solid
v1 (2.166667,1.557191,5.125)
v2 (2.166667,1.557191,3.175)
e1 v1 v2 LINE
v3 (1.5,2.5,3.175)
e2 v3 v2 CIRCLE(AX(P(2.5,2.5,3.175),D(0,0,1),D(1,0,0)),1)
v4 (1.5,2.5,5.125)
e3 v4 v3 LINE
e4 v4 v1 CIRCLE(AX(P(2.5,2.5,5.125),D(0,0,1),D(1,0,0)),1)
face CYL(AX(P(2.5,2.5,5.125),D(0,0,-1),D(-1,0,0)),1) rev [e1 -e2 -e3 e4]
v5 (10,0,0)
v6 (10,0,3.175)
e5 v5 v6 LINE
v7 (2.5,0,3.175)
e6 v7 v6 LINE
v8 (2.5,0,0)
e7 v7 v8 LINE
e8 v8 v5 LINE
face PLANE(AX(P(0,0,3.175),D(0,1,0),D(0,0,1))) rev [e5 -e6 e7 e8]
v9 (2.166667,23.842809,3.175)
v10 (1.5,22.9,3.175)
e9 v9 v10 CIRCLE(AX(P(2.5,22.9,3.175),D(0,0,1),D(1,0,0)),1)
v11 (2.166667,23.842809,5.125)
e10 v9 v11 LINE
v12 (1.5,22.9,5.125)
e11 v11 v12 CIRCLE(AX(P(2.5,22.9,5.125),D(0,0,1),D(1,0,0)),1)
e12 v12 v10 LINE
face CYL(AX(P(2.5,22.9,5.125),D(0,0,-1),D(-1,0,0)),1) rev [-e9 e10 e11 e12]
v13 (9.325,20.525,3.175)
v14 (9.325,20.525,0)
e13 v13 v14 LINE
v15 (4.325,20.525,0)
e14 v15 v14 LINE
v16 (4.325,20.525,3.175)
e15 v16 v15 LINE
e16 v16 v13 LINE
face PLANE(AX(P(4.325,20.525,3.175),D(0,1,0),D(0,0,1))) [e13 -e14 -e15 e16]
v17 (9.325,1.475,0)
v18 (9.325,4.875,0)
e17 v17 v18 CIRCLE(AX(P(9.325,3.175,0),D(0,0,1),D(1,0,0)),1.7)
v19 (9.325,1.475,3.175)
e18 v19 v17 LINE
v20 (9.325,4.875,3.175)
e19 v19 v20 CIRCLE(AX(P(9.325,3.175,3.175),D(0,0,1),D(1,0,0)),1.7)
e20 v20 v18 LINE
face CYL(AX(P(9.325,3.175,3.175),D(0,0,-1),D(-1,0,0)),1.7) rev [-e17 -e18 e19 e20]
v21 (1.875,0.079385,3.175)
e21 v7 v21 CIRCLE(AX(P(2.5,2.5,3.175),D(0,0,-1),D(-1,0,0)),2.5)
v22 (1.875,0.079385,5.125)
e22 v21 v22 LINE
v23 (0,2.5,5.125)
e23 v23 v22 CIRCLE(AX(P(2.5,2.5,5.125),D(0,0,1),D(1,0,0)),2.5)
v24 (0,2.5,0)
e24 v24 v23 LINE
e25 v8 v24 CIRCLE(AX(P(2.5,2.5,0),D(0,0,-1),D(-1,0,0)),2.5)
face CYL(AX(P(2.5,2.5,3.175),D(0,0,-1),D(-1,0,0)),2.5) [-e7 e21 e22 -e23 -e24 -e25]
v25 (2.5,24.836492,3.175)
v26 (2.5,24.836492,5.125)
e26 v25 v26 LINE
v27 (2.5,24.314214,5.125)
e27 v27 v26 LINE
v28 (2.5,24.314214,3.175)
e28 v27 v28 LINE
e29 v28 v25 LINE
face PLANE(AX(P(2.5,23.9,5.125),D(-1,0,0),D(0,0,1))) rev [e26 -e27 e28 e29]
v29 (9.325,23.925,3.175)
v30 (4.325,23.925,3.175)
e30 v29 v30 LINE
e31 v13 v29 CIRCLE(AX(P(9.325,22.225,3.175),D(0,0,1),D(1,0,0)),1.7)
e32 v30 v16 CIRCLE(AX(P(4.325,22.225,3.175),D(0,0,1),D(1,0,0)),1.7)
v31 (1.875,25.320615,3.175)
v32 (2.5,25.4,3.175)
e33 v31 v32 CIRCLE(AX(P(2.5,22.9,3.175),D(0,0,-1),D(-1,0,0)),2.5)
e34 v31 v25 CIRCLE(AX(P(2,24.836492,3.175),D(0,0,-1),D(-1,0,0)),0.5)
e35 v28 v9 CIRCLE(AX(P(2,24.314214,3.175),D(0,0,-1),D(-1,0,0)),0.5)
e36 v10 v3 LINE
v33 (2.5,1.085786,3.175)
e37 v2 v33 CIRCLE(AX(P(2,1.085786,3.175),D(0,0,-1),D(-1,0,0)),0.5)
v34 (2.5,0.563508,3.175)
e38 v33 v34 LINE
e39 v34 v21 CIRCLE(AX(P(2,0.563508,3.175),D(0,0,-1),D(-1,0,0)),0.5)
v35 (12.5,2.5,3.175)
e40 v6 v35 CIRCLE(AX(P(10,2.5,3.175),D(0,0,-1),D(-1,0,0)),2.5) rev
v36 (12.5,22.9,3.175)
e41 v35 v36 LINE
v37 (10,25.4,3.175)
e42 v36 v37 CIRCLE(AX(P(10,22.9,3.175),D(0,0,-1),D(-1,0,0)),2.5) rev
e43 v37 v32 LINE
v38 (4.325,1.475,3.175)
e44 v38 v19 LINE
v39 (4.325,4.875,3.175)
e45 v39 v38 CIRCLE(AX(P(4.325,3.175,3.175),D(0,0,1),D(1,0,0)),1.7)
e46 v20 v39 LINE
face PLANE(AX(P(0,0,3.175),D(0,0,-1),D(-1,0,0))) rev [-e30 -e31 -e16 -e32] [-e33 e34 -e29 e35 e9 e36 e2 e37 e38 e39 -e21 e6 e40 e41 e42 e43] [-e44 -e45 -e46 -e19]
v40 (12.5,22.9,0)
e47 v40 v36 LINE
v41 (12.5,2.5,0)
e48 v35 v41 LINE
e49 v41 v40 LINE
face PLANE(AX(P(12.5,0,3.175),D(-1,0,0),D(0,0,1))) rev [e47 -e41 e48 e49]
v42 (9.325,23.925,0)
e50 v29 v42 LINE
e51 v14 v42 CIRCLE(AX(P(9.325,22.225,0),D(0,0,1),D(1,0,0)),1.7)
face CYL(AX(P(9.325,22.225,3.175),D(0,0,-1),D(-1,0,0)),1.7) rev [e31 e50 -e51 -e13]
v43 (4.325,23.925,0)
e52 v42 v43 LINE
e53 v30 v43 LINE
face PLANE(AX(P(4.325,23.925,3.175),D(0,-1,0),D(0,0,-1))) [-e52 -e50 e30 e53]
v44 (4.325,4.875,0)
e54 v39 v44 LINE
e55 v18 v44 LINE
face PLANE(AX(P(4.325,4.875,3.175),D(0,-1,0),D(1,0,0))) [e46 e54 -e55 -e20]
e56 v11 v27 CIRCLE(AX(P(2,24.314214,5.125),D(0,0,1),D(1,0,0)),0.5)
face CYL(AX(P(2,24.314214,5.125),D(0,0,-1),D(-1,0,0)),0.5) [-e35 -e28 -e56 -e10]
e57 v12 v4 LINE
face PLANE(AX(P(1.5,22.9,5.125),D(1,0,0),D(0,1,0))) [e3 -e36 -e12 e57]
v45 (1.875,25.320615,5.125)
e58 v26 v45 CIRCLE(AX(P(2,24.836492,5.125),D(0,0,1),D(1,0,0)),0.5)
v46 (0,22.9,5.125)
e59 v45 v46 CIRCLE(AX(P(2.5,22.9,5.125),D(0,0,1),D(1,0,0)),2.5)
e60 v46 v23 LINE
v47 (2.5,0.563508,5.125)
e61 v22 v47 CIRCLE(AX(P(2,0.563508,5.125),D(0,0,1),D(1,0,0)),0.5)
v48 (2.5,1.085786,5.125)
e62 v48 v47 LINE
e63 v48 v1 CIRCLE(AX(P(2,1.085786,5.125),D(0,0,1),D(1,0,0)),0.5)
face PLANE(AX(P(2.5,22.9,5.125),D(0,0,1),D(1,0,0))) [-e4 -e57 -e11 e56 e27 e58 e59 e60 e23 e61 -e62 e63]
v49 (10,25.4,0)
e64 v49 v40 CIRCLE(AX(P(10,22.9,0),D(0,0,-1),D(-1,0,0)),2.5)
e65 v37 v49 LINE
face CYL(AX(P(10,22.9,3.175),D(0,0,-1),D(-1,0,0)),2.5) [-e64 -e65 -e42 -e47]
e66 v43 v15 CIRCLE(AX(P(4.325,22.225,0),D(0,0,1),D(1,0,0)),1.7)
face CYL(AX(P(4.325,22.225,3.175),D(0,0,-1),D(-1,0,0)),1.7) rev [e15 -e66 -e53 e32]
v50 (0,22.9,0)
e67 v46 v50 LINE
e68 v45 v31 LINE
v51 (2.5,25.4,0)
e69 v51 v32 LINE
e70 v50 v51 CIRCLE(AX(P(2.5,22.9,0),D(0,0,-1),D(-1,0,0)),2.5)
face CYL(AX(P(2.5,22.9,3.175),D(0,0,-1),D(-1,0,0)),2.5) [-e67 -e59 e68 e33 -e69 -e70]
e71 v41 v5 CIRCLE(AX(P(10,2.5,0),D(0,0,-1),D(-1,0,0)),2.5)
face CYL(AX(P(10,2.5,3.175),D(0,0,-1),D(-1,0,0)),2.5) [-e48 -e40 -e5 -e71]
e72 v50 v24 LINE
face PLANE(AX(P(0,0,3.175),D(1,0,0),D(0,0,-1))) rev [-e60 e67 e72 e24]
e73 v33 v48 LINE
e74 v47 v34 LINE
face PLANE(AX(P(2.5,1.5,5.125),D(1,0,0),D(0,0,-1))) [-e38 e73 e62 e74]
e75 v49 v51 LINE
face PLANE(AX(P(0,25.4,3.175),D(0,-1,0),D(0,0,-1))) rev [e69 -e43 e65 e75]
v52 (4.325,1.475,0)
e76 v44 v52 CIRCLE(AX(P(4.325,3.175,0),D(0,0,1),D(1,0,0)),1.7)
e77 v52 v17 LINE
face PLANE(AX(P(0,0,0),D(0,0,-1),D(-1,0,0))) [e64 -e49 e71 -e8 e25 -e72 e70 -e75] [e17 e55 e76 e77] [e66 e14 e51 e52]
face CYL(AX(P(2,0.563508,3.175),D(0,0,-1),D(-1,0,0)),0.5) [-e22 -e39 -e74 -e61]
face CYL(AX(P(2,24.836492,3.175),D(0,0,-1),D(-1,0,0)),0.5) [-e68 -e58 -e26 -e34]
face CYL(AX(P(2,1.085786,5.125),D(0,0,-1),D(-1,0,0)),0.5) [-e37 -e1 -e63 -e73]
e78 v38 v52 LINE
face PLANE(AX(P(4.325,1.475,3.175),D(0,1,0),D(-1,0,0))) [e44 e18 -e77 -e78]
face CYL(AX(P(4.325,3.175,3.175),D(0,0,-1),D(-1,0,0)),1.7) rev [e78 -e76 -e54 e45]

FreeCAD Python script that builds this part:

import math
import FreeCAD as App
import Part
import Sketcher
Q = App.Units.Quantity


def edges_at(feature, points):
    """Names of the edges that pass closest to the given points."""
    edges = feature.Shape.Edges
    near = lambda p: min(range(len(edges)), key=lambda i: edges[i].distToShape(Part.Vertex(*p))[0])
    return sorted({f"Edge{near(p) + 1}" for p in points})


def add_polygon(sketch, points):
    """Adds a closed chain of lines whose ends are joined by coincident constraints."""
    first, n = sketch.GeometryCount, len(points)
    for a, b in zip(points, points[1:] + points[:1]):
        sketch.addGeometry(Part.LineSegment(App.Vector(*a, 0), App.Vector(*b, 0)), False)
    for i in range(n):
        sketch.addConstraint(Sketcher.Constraint("Coincident", first + i, 2, first + (i + 1) % n, 1))

doc = App.newDocument("Part")
body = doc.addObject("PartDesign::Body", "Body")

# Sketch on XY plane
sketch1 = body.newObject("Sketcher::SketchObject", "Sketch")
sketch1.AttachmentSupport = (doc.getObject("XY_Plane"), [""])
sketch1.MapMode = "FlatFace"
add_polygon(sketch1, [(0, 25.4), (0, 0), (12.5, 0), (12.5, 25.4)])  # lines 0-3
sketch1.addGeometry(Part.ArcOfCircle(Part.Circle(App.Vector(4.325, 3.175, 0), App.Vector(0, 0, 1), 1.7), math.radians(90), math.radians(270)), False)  # 4
sketch1.addGeometry(Part.LineSegment(App.Vector(4.325, 4.875, 0), App.Vector(9.325, 4.875, 0)), False)  # 5
sketch1.addGeometry(Part.ArcOfCircle(Part.Circle(App.Vector(9.325, 3.175, 0), App.Vector(0, 0, 1), 1.7), math.radians(-90), math.radians(90)), False)  # 6
sketch1.addGeometry(Part.LineSegment(App.Vector(9.325, 1.475, 0), App.Vector(4.325, 1.475, 0)), False)  # 7
sketch1.addGeometry(Part.ArcOfCircle(Part.Circle(App.Vector(4.325, 22.225, 0), App.Vector(0, 0, 1), 1.7), math.radians(90), math.radians(270)), False)  # 8
sketch1.addGeometry(Part.LineSegment(App.Vector(4.325, 23.925, 0), App.Vector(9.325, 23.925, 0)), False)  # 9
sketch1.addGeometry(Part.ArcOfCircle(Part.Circle(App.Vector(9.325, 22.225, 0), App.Vector(0, 0, 1), 1.7), math.radians(-90), math.radians(90)), False)  # 10
sketch1.addGeometry(Part.LineSegment(App.Vector(9.325, 20.525, 0), App.Vector(4.325, 20.525, 0)), False)  # 11
sketch1.addConstraint(Sketcher.Constraint("Tangent", 4, 1, 5, 1))
sketch1.addConstraint(Sketcher.Constraint("Tangent", 5, 2, 6, 2))
sketch1.addConstraint(Sketcher.Constraint("Tangent", 6, 1, 7, 1))
sketch1.addConstraint(Sketcher.Constraint("Tangent", 7, 2, 4, 2))
sketch1.addConstraint(Sketcher.Constraint("Tangent", 8, 1, 9, 1))
sketch1.addConstraint(Sketcher.Constraint("Tangent", 9, 2, 10, 2))
sketch1.addConstraint(Sketcher.Constraint("Tangent", 10, 1, 11, 1))
sketch1.addConstraint(Sketcher.Constraint("Tangent", 11, 2, 8, 2))
sketch1.addConstraint(Sketcher.Constraint("Vertical", 0))
sketch1.addConstraint(Sketcher.Constraint("Horizontal", 1))
sketch1.addConstraint(Sketcher.Constraint("Vertical", 2))
sketch1.addConstraint(Sketcher.Constraint("Horizontal", 3))
sketch1.addConstraint(Sketcher.Constraint("Horizontal", 5))
sketch1.addConstraint(Sketcher.Constraint("Horizontal", 7))
sketch1.addConstraint(Sketcher.Constraint("Horizontal", 9))
sketch1.addConstraint(Sketcher.Constraint("Horizontal", 11))
sketch1.addConstraint(Sketcher.Constraint("Coincident", 0, 2, -1, 1))
sketch1.addConstraint(Sketcher.Constraint("Equal", 6, 8))
sketch1.addConstraint(Sketcher.Constraint("Vertical", 4, 3, 8, 3))
sketch1.addConstraint(Sketcher.Constraint("Vertical", 6, 3, 10, 3))
sketch1.addConstraint(Sketcher.Constraint("Radius", 4, Q("1.7 mm")))
sketch1.addConstraint(Sketcher.Constraint("DistanceX", 5, 1, 5, 2, Q("5 mm")))
sketch1.addConstraint(Sketcher.Constraint("DistanceX", 1, 1, 1, 2, Q("12.5 mm")))
sketch1.addConstraint(Sketcher.Constraint("DistanceY", 0, 2, 0, 1, Q("25.4 mm")))
sketch1.addConstraint(Sketcher.Constraint("DistanceY", 4, 3, 8, 3, Q("19.05 mm")))
sketch1.addConstraint(Sketcher.Constraint("DistanceX", -1, 1, 4, 3, Q("4.325 mm")))
sketch1.addConstraint(Sketcher.Constraint("DistanceY", -1, 1, 4, 3, Q("3.175 mm")))
pad1 = body.newObject("PartDesign::Pad", "Pad")
pad1.Profile = sketch1
pad1.Length = 3.175
doc.recompute()

fillet = body.newObject("PartDesign::Fillet", "Fillet")
fillet.Base = (pad1, edges_at(pad1, [
    (0, 25.4, 1.587),
    (12.5, 25.4, 1.587),
    (12.5, 0, 1.587),
    (0, 0, 1.587),
]))
fillet.Radius = 2.5

# Sketch on XY plane
sketch2 = body.newObject("Sketcher::SketchObject", "Sketch001")
sketch2.AttachmentSupport = (doc.getObject("XY_Plane"), [""])
sketch2.MapMode = "FlatFace"
sketch2.AttachmentOffset = App.Placement(App.Vector(0, 0, 5.125), App.Rotation())
sketch2.addGeometry(Part.LineSegment(App.Vector(0, 22.9, 0), App.Vector(0, 2.5, 0)), False)
sketch2.addGeometry(Part.ArcOfCircle(Part.Circle(App.Vector(2.5, 2.5, 0), App.Vector(0, 0, 1), 2.5), math.radians(180), math.radians(270)), False)
sketch2.addGeometry(Part.LineSegment(App.Vector(2.5, 0, 0), App.Vector(2.5, 1.5, 0)), False)
sketch2.addGeometry(Part.ArcOfCircle(Part.Circle(App.Vector(2.5, 2.5, 0), App.Vector(0, 0, 1), 1), math.radians(180), math.radians(270)), False)
sketch2.addGeometry(Part.LineSegment(App.Vector(1.5, 2.5, 0), App.Vector(1.5, 22.9, 0)), False)
sketch2.addGeometry(Part.ArcOfCircle(Part.Circle(App.Vector(2.5, 22.9, 0), App.Vector(0, 0, 1), 1), math.radians(90), math.radians(180)), False)
sketch2.addGeometry(Part.LineSegment(App.Vector(2.5, 23.9, 0), App.Vector(2.5, 25.4, 0)), False)
sketch2.addGeometry(Part.ArcOfCircle(Part.Circle(App.Vector(2.5, 22.9, 0), App.Vector(0, 0, 1), 2.5), math.radians(90), math.radians(180)), False)
sketch2.addConstraint(Sketcher.Constraint("Tangent", 0, 2, 1, 1))
sketch2.addConstraint(Sketcher.Constraint("Coincident", 1, 2, 2, 1))
sketch2.addConstraint(Sketcher.Constraint("Coincident", 2, 2, 3, 2))
sketch2.addConstraint(Sketcher.Constraint("Tangent", 3, 1, 4, 1))
sketch2.addConstraint(Sketcher.Constraint("Tangent", 4, 2, 5, 2))
sketch2.addConstraint(Sketcher.Constraint("Coincident", 5, 1, 6, 1))
sketch2.addConstraint(Sketcher.Constraint("Coincident", 6, 2, 7, 1))
sketch2.addConstraint(Sketcher.Constraint("Tangent", 7, 2, 0, 1))
sketch2.addConstraint(Sketcher.Constraint("Vertical", 0))
sketch2.addConstraint(Sketcher.Constraint("Vertical", 2))
sketch2.addConstraint(Sketcher.Constraint("Vertical", 4))
sketch2.addConstraint(Sketcher.Constraint("Vertical", 6))
sketch2.addConstraint(Sketcher.Constraint("Coincident", 3, 3, 1, 3))
sketch2.addConstraint(Sketcher.Constraint("Coincident", 7, 3, 5, 3))
sketch2.addConstraint(Sketcher.Constraint("Equal", 3, 5))
sketch2.addConstraint(Sketcher.Constraint("PointOnObject", 0, 2, -2))
sketch2.addConstraint(Sketcher.Constraint("PointOnObject", 1, 2, -1))
sketch2.addConstraint(Sketcher.Constraint("Vertical", 7, 3, 1, 2))
sketch2.addConstraint(Sketcher.Constraint("Vertical", 2, 2, 5, 1))
sketch2.addConstraint(Sketcher.Constraint("Radius", 3, Q("1 mm")))
sketch2.addConstraint(Sketcher.Constraint("Radius", 1, Q("2.5 mm")))
sketch2.addConstraint(Sketcher.Constraint("DistanceY", 0, 2, 0, 1, Q("20.4 mm")))
pad2 = body.newObject("PartDesign::Pad", "Pad001")
pad2.Profile = sketch2
pad2.Length = 1.95
pad2.Reversed = True
doc.recompute()

fillet2 = body.newObject("PartDesign::Fillet", "Fillet001")
fillet2.Base = (pad2, edges_at(pad2, [
    (2.5, 25.4, 4.15),
    (2.5, 0, 4.15),
    (2.5, 1.5, 4.15),
    (2.5, 23.9, 4.15),
]))
fillet2.Radius = 0.5

doc.recompute()
